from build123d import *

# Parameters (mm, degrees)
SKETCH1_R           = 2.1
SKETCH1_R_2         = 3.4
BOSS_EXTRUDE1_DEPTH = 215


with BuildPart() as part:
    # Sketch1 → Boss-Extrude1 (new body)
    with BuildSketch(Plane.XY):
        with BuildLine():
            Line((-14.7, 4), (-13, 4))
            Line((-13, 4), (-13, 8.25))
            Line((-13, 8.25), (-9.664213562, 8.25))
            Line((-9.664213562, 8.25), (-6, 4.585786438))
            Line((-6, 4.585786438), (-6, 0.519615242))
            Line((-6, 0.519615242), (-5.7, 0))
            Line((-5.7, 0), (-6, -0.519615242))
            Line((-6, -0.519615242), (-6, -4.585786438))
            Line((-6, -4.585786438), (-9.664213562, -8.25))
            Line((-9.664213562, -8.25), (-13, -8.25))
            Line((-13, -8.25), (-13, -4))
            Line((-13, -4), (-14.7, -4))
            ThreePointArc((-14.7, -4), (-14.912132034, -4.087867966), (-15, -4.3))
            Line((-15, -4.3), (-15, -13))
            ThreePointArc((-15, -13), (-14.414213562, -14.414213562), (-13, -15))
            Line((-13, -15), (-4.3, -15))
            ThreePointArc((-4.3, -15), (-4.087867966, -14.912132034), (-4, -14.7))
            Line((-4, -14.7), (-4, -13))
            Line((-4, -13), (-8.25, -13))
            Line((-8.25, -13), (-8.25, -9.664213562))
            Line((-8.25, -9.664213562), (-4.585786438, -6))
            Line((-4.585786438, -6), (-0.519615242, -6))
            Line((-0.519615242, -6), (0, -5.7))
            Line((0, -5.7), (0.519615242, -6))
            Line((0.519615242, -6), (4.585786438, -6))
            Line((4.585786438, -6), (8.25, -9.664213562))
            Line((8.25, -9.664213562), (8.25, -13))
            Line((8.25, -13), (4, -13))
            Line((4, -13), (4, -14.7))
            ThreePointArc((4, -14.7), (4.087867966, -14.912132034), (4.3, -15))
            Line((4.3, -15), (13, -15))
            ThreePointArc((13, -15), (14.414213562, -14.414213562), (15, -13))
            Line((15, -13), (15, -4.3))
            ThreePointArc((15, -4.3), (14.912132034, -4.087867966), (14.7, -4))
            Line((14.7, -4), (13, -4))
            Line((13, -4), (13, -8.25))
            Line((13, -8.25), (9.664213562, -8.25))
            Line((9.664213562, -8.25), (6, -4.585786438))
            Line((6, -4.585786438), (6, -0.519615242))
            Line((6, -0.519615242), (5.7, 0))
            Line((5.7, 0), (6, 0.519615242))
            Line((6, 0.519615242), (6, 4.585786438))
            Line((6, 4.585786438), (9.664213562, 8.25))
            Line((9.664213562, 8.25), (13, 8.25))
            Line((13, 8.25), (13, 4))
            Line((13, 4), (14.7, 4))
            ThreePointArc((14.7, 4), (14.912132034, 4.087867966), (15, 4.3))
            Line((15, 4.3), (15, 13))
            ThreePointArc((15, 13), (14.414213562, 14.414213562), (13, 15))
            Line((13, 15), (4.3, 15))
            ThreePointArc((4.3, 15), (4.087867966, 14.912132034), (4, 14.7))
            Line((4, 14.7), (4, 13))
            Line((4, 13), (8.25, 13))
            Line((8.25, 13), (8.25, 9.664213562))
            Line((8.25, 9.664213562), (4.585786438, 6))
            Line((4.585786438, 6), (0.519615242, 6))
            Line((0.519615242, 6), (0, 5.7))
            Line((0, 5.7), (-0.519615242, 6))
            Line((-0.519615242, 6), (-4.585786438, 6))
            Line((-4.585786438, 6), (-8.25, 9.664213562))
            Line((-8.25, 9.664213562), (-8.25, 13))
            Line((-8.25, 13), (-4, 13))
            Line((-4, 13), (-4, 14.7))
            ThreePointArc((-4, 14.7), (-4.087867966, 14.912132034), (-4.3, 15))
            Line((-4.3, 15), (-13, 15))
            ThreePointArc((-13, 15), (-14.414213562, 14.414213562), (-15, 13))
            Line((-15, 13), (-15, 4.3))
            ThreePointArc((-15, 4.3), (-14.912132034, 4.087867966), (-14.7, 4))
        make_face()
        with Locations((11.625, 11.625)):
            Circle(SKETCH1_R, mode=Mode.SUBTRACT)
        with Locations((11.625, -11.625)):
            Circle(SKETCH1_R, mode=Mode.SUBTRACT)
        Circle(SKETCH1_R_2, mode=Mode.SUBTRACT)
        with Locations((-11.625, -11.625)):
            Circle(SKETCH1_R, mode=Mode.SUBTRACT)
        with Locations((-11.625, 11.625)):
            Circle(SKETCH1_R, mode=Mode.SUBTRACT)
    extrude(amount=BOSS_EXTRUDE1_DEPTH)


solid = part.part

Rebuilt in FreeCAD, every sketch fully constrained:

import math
import FreeCAD as App
import Part
import Sketcher

V = App.Vector
Q = App.Units.Quantity

doc = App.newDocument("Part")
body = doc.addObject("PartDesign::Body", "Body")

sketch1 = body.newObject("Sketcher::SketchObject", "Sketch")
sketch1.AttachmentSupport = (doc.getObject("XY_Plane"), [""])
sketch1.MapMode = "FlatFace"
sketch1.addGeometry([
    Part.LineSegment(V(-14.7, 4, 0), V(-13, 4, 0)),
    Part.LineSegment(V(-13, 4, 0), V(-13, 8.25, 0)),
    Part.LineSegment(V(-13, 8.25, 0), V(-9.66, 8.25, 0)),
    Part.LineSegment(V(-9.66, 8.25, 0), V(-6, 4.59, 0)),
    Part.LineSegment(V(-6, 4.59, 0), V(-6, 0.52, 0)),
    Part.LineSegment(V(-6, 0.52, 0), V(-5.7, 0, 0)),
    Part.LineSegment(V(-5.7, 0, 0), V(-6, -0.52, 0)),
    Part.LineSegment(V(-6, -0.52, 0), V(-6, -4.59, 0)),
    Part.LineSegment(V(-6, -4.59, 0), V(-9.66, -8.25, 0)),
    Part.LineSegment(V(-9.66, -8.25, 0), V(-13, -8.25, 0)),
    Part.LineSegment(V(-13, -8.25, 0), V(-13, -4, 0)),
    Part.LineSegment(V(-13, -4, 0), V(-14.7, -4, 0)),
    Part.ArcOfCircle(Part.Circle(V(-14.7, -4.3, 0), V(0, 0, 1), 0.3), math.radians(90), math.radians(180)),
    Part.LineSegment(V(-15, -4.3, 0), V(-15, -13, 0)),
    Part.ArcOfCircle(Part.Circle(V(-13, -13, 0), V(0, 0, 1), 2), math.radians(-180), math.radians(-90)),
    Part.LineSegment(V(-13, -15, 0), V(-4.3, -15, 0)),
    Part.ArcOfCircle(Part.Circle(V(-4.3, -14.7, 0), V(0, 0, 1), 0.3), math.radians(-90), math.radians(0)),
    Part.LineSegment(V(-4, -14.7, 0), V(-4, -13, 0)),
    Part.LineSegment(V(-4, -13, 0), V(-8.25, -13, 0)),
    Part.LineSegment(V(-8.25, -13, 0), V(-8.25, -9.66, 0)),
    Part.LineSegment(V(-8.25, -9.66, 0), V(-4.59, -6, 0)),
    Part.LineSegment(V(-4.59, -6, 0), V(-0.52, -6, 0)),
    Part.LineSegment(V(-0.52, -6, 0), V(0, -5.7, 0)),
    Part.LineSegment(V(0, -5.7, 0), V(0.52, -6, 0)),
    Part.LineSegment(V(0.52, -6, 0), V(4.59, -6, 0)),
    Part.LineSegment(V(4.59, -6, 0), V(8.25, -9.66, 0)),
    Part.LineSegment(V(8.25, -9.66, 0), V(8.25, -13, 0)),
    Part.LineSegment(V(8.25, -13, 0), V(4, -13, 0)),
    Part.LineSegment(V(4, -13, 0), V(4, -14.7, 0)),
    Part.ArcOfCircle(Part.Circle(V(4.3, -14.7, 0), V(0, 0, 1), 0.3), math.radians(-180), math.radians(-90)),
    Part.LineSegment(V(4.3, -15, 0), V(13, -15, 0)),
    Part.ArcOfCircle(Part.Circle(V(13, -13, 0), V(0, 0, 1), 2), math.radians(-90), math.radians(0)),
    Part.LineSegment(V(15, -13, 0), V(15, -4.3, 0)),
    Part.ArcOfCircle(Part.Circle(V(14.7, -4.3, 0), V(0, 0, 1), 0.3), math.radians(0), math.radians(90)),
    Part.LineSegment(V(14.7, -4, 0), V(13, -4, 0)),
    Part.LineSegment(V(13, -4, 0), V(13, -8.25, 0)),
    Part.LineSegment(V(13, -8.25, 0), V(9.66, -8.25, 0)),
    Part.LineSegment(V(9.66, -8.25, 0), V(6, -4.59, 0)),
    Part.LineSegment(V(6, -4.59, 0), V(6, -0.52, 0)),
    Part.LineSegment(V(6, -0.52, 0), V(5.7, 0, 0)),
    Part.LineSegment(V(5.7, 0, 0), V(6, 0.52, 0)),
    Part.LineSegment(V(6, 0.52, 0), V(6, 4.59, 0)),
    Part.LineSegment(V(6, 4.59, 0), V(9.66, 8.25, 0)),
    Part.LineSegment(V(9.66, 8.25, 0), V(13, 8.25, 0)),
    Part.LineSegment(V(13, 8.25, 0), V(13, 4, 0)),
    Part.LineSegment(V(13, 4, 0), V(14.7, 4, 0)),
    Part.ArcOfCircle(Part.Circle(V(14.7, 4.3, 0), V(0, 0, 1), 0.3), math.radians(-90), math.radians(0)),
    Part.LineSegment(V(15, 4.3, 0), V(15, 13, 0)),
    Part.ArcOfCircle(Part.Circle(V(13, 13, 0), V(0, 0, 1), 2), math.radians(0), math.radians(90)),
    Part.LineSegment(V(13, 15, 0), V(4.3, 15, 0)),
    Part.ArcOfCircle(Part.Circle(V(4.3, 14.7, 0), V(0, 0, 1), 0.3), math.radians(90), math.radians(180)),
    Part.LineSegment(V(4, 14.7, 0), V(4, 13, 0)),
    Part.LineSegment(V(4, 13, 0), V(8.25, 13, 0)),
    Part.LineSegment(V(8.25, 13, 0), V(8.25, 9.66, 0)),
    Part.LineSegment(V(8.25, 9.66, 0), V(4.59, 6, 0)),
    Part.LineSegment(V(4.59, 6, 0), V(0.52, 6, 0)),
    Part.LineSegment(V(0.52, 6, 0), V(0, 5.7, 0)),
    Part.LineSegment(V(0, 5.7, 0), V(-0.52, 6, 0)),
    Part.LineSegment(V(-0.52, 6, 0), V(-4.59, 6, 0)),
    Part.LineSegment(V(-4.59, 6, 0), V(-8.25, 9.66, 0)),
    Part.LineSegment(V(-8.25, 9.66, 0), V(-8.25, 13, 0)),
    Part.LineSegment(V(-8.25, 13, 0), V(-4, 13, 0)),
    Part.LineSegment(V(-4, 13, 0), V(-4, 14.7, 0)),
    Part.ArcOfCircle(Part.Circle(V(-4.3, 14.7, 0), V(0, 0, 1), 0.3), math.radians(0), math.radians(90)),
    Part.LineSegment(V(-4.3, 15, 0), V(-13, 15, 0)),
    Part.ArcOfCircle(Part.Circle(V(-13, 13, 0), V(0, 0, 1), 2), math.radians(90), math.radians(180)),
    Part.LineSegment(V(-15, 13, 0), V(-15, 4.3, 0)),
    Part.ArcOfCircle(Part.Circle(V(-14.7, 4.3, 0), V(0, 0, 1), 0.3), math.radians(-180), math.radians(-90)),
    Part.Circle(V(-11.62, -11.62, 0), V(0, 0, 1), 2.1),
    Part.Circle(V(11.62, -11.62, 0), V(0, 0, 1), 2.1),
    Part.Circle(V(-11.62, 11.62, 0), V(0, 0, 1), 2.1),
    Part.Circle(V(0, 0, 0), V(0, 0, 1), 3.4),
    Part.Circle(V(11.62, 11.62, 0), V(0, 0, 1), 2.1),
], False)
sketch1.addConstraint([
    Sketcher.Constraint("Coincident", 0, 2, 1, 1),
    Sketcher.Constraint("Coincident", 1, 2, 2, 1),
    Sketcher.Constraint("Coincident", 2, 2, 3, 1),
    Sketcher.Constraint("Coincident", 3, 2, 4, 1),
    Sketcher.Constraint("Coincident", 4, 2, 5, 1),
    Sketcher.Constraint("Coincident", 5, 2, 6, 1),
    Sketcher.Constraint("Coincident", 6, 2, 7, 1),
    Sketcher.Constraint("Coincident", 7, 2, 8, 1),
    Sketcher.Constraint("Coincident", 8, 2, 9, 1),
    Sketcher.Constraint("Coincident", 9, 2, 10, 1),
    Sketcher.Constraint("Coincident", 10, 2, 11, 1),
    Sketcher.Constraint("Tangent", 11, 2, 12, 1),
    Sketcher.Constraint("Tangent", 12, 2, 13, 1),
    Sketcher.Constraint("Tangent", 13, 2, 14, 1),
    Sketcher.Constraint("Tangent", 14, 2, 15, 1),
    Sketcher.Constraint("Tangent", 15, 2, 16, 1),
    Sketcher.Constraint("Tangent", 16, 2, 17, 1),
    Sketcher.Constraint("Coincident", 17, 2, 18, 1),
    Sketcher.Constraint("Coincident", 18, 2, 19, 1),
    Sketcher.Constraint("Coincident", 19, 2, 20, 1),
    Sketcher.Constraint("Coincident", 20, 2, 21, 1),
    Sketcher.Constraint("Coincident", 21, 2, 22, 1),
    Sketcher.Constraint("Coincident", 22, 2, 23, 1),
    Sketcher.Constraint("Coincident", 23, 2, 24, 1),
    Sketcher.Constraint("Coincident", 24, 2, 25, 1),
    Sketcher.Constraint("Coincident", 25, 2, 26, 1),
    Sketcher.Constraint("Coincident", 26, 2, 27, 1),
    Sketcher.Constraint("Coincident", 27, 2, 28, 1),
    Sketcher.Constraint("Tangent", 28, 2, 29, 1),
    Sketcher.Constraint("Tangent", 29, 2, 30, 1),
    Sketcher.Constraint("Tangent", 30, 2, 31, 1),
    Sketcher.Constraint("Tangent", 31, 2, 32, 1),
    Sketcher.Constraint("Tangent", 32, 2, 33, 1),
    Sketcher.Constraint("Tangent", 33, 2, 34, 1),
    Sketcher.Constraint("Coincident", 34, 2, 35, 1),
    Sketcher.Constraint("Coincident", 35, 2, 36, 1),
    Sketcher.Constraint("Coincident", 36, 2, 37, 1),
    Sketcher.Constraint("Coincident", 37, 2, 38, 1),
    Sketcher.Constraint("Coincident", 38, 2, 39, 1),
    Sketcher.Constraint("Coincident", 39, 2, 40, 1),
    Sketcher.Constraint("Coincident", 40, 2, 41, 1),
    Sketcher.Constraint("Coincident", 41, 2, 42, 1),
    Sketcher.Constraint("Coincident", 42, 2, 43, 1),
    Sketcher.Constraint("Coincident", 43, 2, 44, 1),
    Sketcher.Constraint("Coincident", 44, 2, 45, 1),
    Sketcher.Constraint("Tangent", 45, 2, 46, 1),
    Sketcher.Constraint("Tangent", 46, 2, 47, 1),
    Sketcher.Constraint("Tangent", 47, 2, 48, 1),
    Sketcher.Constraint("Tangent", 48, 2, 49, 1),
    Sketcher.Constraint("Tangent", 49, 2, 50, 1),
    Sketcher.Constraint("Tangent", 50, 2, 51, 1),
    Sketcher.Constraint("Coincident", 51, 2, 52, 1),
    Sketcher.Constraint("Coincident", 52, 2, 53, 1),
    Sketcher.Constraint("Coincident", 53, 2, 54, 1),
    Sketcher.Constraint("Coincident", 54, 2, 55, 1),
    Sketcher.Constraint("Coincident", 55, 2, 56, 1),
    Sketcher.Constraint("Coincident", 56, 2, 57, 1),
    Sketcher.Constraint("Coincident", 57, 2, 58, 1),
    Sketcher.Constraint("Coincident", 58, 2, 59, 1),
    Sketcher.Constraint("Coincident", 59, 2, 60, 1),
    Sketcher.Constraint("Coincident", 60, 2, 61, 1),
    Sketcher.Constraint("Coincident", 61, 2, 62, 1),
    Sketcher.Constraint("Tangent", 62, 2, 63, 1),
    Sketcher.Constraint("Tangent", 63, 2, 64, 1),
    Sketcher.Constraint("Tangent", 64, 2, 65, 1),
    Sketcher.Constraint("Tangent", 65, 2, 66, 1),
    Sketcher.Constraint("Tangent", 66, 2, 67, 1),
    Sketcher.Constraint("Tangent", 67, 2, 0, 1),
    Sketcher.Constraint("Horizontal", 0),
    Sketcher.Constraint("Vertical", 1),
    Sketcher.Constraint("Horizontal", 2),
    Sketcher.Constraint("Vertical", 4),
    Sketcher.Constraint("Vertical", 7),
    Sketcher.Constraint("Horizontal", 9),
    Sketcher.Constraint("Vertical", 10),
    Sketcher.Constraint("Horizontal", 11),
    Sketcher.Constraint("Vertical", 13),
    Sketcher.Constraint("Horizontal", 15),
    Sketcher.Constraint("Vertical", 17),
    Sketcher.Constraint("Horizontal", 18),
    Sketcher.Constraint("Vertical", 19),
    Sketcher.Constraint("Horizontal", 21),
    Sketcher.Constraint("Horizontal", 24),
    Sketcher.Constraint("Vertical", 26),
    Sketcher.Constraint("Horizontal", 27),
    Sketcher.Constraint("Vertical", 28),
    Sketcher.Constraint("Horizontal", 30),
    Sketcher.Constraint("Vertical", 32),
    Sketcher.Constraint("Horizontal", 34),
    Sketcher.Constraint("Vertical", 35),
    Sketcher.Constraint("Horizontal", 36),
    Sketcher.Constraint("Vertical", 38),
    Sketcher.Constraint("Vertical", 41),
    Sketcher.Constraint("Horizontal", 43),
    Sketcher.Constraint("Vertical", 44),
    Sketcher.Constraint("Horizontal", 45),
    Sketcher.Constraint("Vertical", 47),
    Sketcher.Constraint("Horizontal", 49),
    Sketcher.Constraint("Vertical", 51),
    Sketcher.Constraint("Horizontal", 52),
    Sketcher.Constraint("Vertical", 53),
    Sketcher.Constraint("Horizontal", 55),
    Sketcher.Constraint("Horizontal", 58),
    Sketcher.Constraint("Vertical", 60),
    Sketcher.Constraint("Horizontal", 61),
    Sketcher.Constraint("Vertical", 62),
    Sketcher.Constraint("Horizontal", 64),
    Sketcher.Constraint("Vertical", 66),
    Sketcher.Constraint("Coincident", 71, 3, -1, 1),
    Sketcher.Constraint("Equal", 12, 16),
    Sketcher.Constraint("Equal", 16, 29),
    Sketcher.Constraint("Equal", 14, 31),
    Sketcher.Constraint("Equal", 29, 33),
    Sketcher.Constraint("Equal", 33, 46),
    Sketcher.Constraint("Equal", 31, 48),
    Sketcher.Constraint("Equal", 46, 50),
    Sketcher.Constraint("Equal", 50, 63),
    Sketcher.Constraint("Equal", 48, 65),
    Sketcher.Constraint("Equal", 63, 67),
    Sketcher.Constraint("Equal", 68, 69),
    Sketcher.Constraint("Equal", 69, 70),
    Sketcher.Constraint("Equal", 70, 72),
    Sketcher.Constraint("Symmetric", 12, 3, 46, 3, -1, 1),
    Sketcher.Constraint("Symmetric", 16, 3, 50, 3, -1, 1),
    Sketcher.Constraint("Symmetric", 29, 3, 63, 3, -1, 1),
    Sketcher.Constraint("Symmetric", 33, 3, 67, 3, -1, 1),
    Sketcher.Constraint("Symmetric", 69, 3, 70, 3, -1, 1),
    Sketcher.Constraint("Symmetric", 68, 3, 72, 3, -1, 1),
    Sketcher.Constraint("Symmetric", 1, 2, 35, 2, -1, 1),
    Sketcher.Constraint("Symmetric", 3, 2, 37, 2, -1, 1),
    Sketcher.Constraint("Symmetric", 5, 2, 39, 2, -1, 1),
    Sketcher.Constraint("Symmetric", 6, 2, 40, 2, -1, 1),
    Sketcher.Constraint("Symmetric", 8, 2, 42, 2, -1, 1),
    Sketcher.Constraint("Symmetric", 18, 2, 52, 2, -1, 1),
    Sketcher.Constraint("Symmetric", 20, 2, 54, 2, -1, 1),
    Sketcher.Constraint("Symmetric", 22, 2, 56, 2, -1, 1),
    Sketcher.Constraint("Symmetric", 23, 2, 57, 2, -1, 1),
    Sketcher.Constraint("Symmetric", 25, 2, 59, 2, -1, 1),
    Sketcher.Constraint("Symmetric", 16, 3, 29, 3, -2),
    Sketcher.Constraint("Symmetric", 12, 3, 33, 3, -2),
    Sketcher.Constraint("Symmetric", 68, 3, 69, 3, -2),
    Sketcher.Constraint("Symmetric", 21, 2, 23, 2, -2),
    Sketcher.Constraint("Symmetric", 19, 2, 25, 2, -2),
    Sketcher.Constraint("Symmetric", 9, 2, 35, 2, -2),
    Sketcher.Constraint("Symmetric", 7, 2, 37, 2, -2),
    Sketcher.Constraint("PointOnObject", 5, 2, -1),
    Sketcher.Constraint("PointOnObject", 22, 2, -2),
    Sketcher.Constraint("Perpendicular", 3, 8),
    Sketcher.Constraint("Parallel", 8, 20),
    Sketcher.Constraint("Perpendicular", 5, 22),
    Sketcher.Constraint("Perpendicular", 6, 23),
    Sketcher.Constraint("Perpendicular", 20, 25),
    Sketcher.Constraint("Parallel", 25, 37),
    Sketcher.Constraint("Perpendicular", 22, 39),
    Sketcher.Constraint("Perpendicular", 37, 42),
    Sketcher.Constraint("Parallel", 42, 54),
    Sketcher.Constraint("Perpendicular", 39, 56),
    Sketcher.Constraint("Perpendicular", 54, 59),
    Sketcher.Constraint("Horizontal", 13, 2, 17, 2),
    Sketcher.Constraint("Horizontal", 18, 2, 26, 2),
    Sketcher.Constraint("Horizontal", 52, 2, 60, 2),
    Sketcher.Constraint("Vertical", 65, 3, 0, 2),
    Sketcher.Constraint("Vertical", 2, 2, 8, 2),
    Sketcher.Constraint("Vertical", 35, 2, 43, 2),
    Sketcher.Constraint("Equal", 61, 1),
    Sketcher.Constraint("Equal", 58, 4),
    Sketcher.Constraint("Equal", 64, 13),
    Sketcher.Constraint("Equal", 43, 19),
    Sketcher.Constraint("Equal", 8, 20),
    Sketcher.Constraint("Equal", 6, 22),
    Sketcher.Constraint("Radius", 14, Q("2 mm")),
    Sketcher.Constraint("Diameter", 68, Q("4.2 mm")),
    Sketcher.Constraint("Diameter", 71, Q("6.8 mm")),
    Sketcher.Constraint("Radius", 12, Q("0.3 mm")),
    Sketcher.Constraint("Angle", 5, Q("-60 deg")),
    Sketcher.Constraint("DistanceX", 15, 1, 15, 2, Q("8.7 mm")),
    Sketcher.Constraint("DistanceX", 14, 3, -1, 1, Q("13 mm")),
    Sketcher.Constraint("DistanceX", 3, 2, -1, 1, Q("6 mm")),
    Sketcher.Constraint("Distance", 5, Q("0.6 mm")),
    Sketcher.Constraint("DistanceX", 18, 2, 18, 1, Q("4.25 mm")),
    Sketcher.Constraint("DistanceX", 68, 3, -1, 1, Q("11.625 mm")),
    Sketcher.Constraint("DistanceY", 68, 3, -1, 1, Q("11.625 mm")),
    Sketcher.Constraint("DistanceX", 21, 1, 21, 2, Q("4.066171 mm")),
])
pad1 = body.newObject("PartDesign::Pad", "Pad")
pad1.Profile = sketch1
pad1.Length = 215

doc.recompute()
